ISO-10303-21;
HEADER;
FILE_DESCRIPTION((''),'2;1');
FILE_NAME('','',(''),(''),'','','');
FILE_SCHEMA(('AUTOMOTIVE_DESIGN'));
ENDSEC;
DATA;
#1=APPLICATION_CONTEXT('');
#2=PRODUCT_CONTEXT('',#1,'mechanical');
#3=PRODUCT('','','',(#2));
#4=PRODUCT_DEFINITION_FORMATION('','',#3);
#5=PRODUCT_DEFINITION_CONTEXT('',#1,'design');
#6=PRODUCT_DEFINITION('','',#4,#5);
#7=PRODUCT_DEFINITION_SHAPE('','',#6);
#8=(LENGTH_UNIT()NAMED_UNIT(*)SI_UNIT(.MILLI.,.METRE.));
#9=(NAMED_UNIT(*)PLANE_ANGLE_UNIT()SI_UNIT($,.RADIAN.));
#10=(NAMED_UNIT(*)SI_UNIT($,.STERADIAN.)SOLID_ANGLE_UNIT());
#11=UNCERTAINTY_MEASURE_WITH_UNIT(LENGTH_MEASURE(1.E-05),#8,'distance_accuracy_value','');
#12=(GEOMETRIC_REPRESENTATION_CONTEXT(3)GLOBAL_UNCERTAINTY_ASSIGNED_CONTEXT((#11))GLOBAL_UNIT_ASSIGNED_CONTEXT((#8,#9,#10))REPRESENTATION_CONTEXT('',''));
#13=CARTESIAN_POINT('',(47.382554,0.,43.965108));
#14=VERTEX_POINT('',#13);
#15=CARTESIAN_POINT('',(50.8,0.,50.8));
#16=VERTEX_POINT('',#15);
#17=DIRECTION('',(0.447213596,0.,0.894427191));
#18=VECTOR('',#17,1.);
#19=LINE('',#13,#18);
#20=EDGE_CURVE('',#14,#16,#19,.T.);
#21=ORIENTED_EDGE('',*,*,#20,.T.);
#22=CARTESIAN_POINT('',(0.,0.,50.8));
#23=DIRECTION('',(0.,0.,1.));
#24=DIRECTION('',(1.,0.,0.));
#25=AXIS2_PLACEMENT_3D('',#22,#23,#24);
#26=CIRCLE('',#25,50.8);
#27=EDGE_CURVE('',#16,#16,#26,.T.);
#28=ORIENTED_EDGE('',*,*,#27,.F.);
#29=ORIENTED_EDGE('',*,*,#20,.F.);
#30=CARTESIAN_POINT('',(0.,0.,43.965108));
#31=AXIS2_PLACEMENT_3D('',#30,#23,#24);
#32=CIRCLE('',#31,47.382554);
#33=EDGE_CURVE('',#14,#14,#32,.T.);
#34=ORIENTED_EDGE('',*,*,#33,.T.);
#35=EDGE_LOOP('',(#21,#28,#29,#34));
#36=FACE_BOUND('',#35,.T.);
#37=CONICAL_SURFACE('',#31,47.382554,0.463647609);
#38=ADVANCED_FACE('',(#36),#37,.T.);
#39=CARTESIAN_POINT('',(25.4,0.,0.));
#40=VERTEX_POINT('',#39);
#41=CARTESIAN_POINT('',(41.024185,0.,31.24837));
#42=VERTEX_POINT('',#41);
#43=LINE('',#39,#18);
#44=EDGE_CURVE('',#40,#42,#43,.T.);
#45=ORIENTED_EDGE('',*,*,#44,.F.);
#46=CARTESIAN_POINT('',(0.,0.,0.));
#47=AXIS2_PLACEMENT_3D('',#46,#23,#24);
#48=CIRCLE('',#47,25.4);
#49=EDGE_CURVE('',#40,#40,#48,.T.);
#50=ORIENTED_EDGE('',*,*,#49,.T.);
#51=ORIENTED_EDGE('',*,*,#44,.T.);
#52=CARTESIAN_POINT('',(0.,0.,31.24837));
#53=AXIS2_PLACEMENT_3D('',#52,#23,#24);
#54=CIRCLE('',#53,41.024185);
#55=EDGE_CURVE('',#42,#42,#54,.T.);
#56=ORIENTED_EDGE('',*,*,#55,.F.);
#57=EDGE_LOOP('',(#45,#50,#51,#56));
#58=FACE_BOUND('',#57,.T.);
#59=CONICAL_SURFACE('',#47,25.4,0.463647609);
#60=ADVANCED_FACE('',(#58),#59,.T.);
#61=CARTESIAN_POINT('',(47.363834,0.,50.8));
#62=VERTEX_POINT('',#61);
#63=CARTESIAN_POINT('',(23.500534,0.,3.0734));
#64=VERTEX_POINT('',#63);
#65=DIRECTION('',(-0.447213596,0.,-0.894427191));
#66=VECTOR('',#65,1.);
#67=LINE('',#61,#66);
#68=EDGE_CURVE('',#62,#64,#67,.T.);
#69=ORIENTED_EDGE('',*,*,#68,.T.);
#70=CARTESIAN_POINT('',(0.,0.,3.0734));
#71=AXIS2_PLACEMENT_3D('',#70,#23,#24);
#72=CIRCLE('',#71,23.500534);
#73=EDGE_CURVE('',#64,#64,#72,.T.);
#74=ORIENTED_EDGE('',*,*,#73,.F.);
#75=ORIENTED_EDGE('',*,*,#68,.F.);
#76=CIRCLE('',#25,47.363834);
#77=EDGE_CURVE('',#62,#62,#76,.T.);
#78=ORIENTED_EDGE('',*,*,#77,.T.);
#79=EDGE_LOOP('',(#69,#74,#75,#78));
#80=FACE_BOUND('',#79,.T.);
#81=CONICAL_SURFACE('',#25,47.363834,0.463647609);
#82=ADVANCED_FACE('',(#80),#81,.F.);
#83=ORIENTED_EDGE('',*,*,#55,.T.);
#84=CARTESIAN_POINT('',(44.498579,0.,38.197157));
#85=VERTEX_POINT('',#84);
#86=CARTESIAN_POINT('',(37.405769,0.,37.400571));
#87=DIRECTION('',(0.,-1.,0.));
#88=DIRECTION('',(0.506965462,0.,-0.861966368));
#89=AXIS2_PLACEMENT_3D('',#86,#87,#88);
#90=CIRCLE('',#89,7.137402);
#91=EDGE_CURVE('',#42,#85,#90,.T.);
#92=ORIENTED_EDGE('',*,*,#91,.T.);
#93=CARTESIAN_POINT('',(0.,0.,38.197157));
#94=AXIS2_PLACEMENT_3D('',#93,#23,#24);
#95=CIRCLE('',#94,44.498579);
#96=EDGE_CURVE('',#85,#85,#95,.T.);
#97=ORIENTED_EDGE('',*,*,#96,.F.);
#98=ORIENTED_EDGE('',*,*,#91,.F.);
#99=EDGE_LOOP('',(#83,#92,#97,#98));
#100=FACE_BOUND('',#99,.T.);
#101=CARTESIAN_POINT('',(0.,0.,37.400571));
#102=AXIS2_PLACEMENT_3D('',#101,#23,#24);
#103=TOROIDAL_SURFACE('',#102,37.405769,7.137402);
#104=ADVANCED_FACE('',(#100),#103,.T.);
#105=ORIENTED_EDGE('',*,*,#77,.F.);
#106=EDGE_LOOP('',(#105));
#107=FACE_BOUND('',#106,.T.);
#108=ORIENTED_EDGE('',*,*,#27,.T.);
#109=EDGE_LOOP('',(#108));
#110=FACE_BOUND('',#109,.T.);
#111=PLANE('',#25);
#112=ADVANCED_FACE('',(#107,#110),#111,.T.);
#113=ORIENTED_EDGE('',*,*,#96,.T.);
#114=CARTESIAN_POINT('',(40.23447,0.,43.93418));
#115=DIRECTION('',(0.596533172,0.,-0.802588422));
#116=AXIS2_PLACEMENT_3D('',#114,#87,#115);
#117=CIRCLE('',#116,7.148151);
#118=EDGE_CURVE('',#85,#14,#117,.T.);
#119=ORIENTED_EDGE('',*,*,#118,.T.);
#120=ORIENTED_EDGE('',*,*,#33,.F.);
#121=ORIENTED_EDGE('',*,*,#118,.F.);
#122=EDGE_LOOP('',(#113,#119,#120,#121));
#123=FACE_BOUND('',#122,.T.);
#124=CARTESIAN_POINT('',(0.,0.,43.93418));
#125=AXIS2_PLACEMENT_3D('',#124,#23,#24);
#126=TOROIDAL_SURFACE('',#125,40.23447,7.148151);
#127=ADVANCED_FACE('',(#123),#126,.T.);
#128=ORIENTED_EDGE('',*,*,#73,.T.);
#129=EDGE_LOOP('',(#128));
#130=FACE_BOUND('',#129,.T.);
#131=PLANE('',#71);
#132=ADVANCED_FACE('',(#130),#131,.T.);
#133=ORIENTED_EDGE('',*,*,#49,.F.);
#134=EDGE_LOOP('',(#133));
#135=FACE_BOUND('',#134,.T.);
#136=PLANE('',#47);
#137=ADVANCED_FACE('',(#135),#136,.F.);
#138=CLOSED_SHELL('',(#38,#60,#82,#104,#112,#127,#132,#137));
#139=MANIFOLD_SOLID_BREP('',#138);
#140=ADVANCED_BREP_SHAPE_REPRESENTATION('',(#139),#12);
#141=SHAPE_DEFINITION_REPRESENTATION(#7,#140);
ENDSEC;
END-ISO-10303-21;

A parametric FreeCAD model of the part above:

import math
import FreeCAD as App
import Part
import Sketcher
from FreeCAD import Vector
Q = App.Units.Quantity

doc = App.newDocument("Part")
body = doc.addObject("PartDesign::Body", "Body")

# Sketch on XZ plane
sketch1 = doc.addObject("Sketcher::SketchObject", "Sketch")
body.addObject(sketch1)
sketch1.AttachmentSupport = (doc.XZ_Plane, [""])
sketch1.MapMode = "FlatFace"
sketch1.addGeometry([
    Part.LineSegment(Vector(0, 3.0734, 0), Vector(0, 0, 0)),  # 0
    Part.LineSegment(Vector(0, 0, 0), Vector(25.4, 0, 0)),  # 1
    Part.LineSegment(Vector(25.4, 0, 0), Vector(41.024185, 31.24837, 0)),  # 2
    Part.ArcOfCircle(Part.Circle(Vector(37.405769, 37.400571, 0), Vector(0, 0, 1), 7.137402), math.radians(-59.538089), math.radians(6.40798)),  # 3
    Part.ArcOfCircle(Part.Circle(Vector(40.23447, 43.93418, 0), Vector(0, 0, 1), 7.148151), math.radians(-53.377994), math.radians(0.2479)),  # 4
    Part.LineSegment(Vector(47.382554, 43.965108, 0), Vector(50.8, 50.8, 0)),  # 5
    Part.LineSegment(Vector(50.8, 50.8, 0), Vector(47.363834, 50.8, 0)),  # 6
    Part.LineSegment(Vector(47.363834, 50.8, 0), Vector(23.500534, 3.0734, 0)),  # 7
    Part.LineSegment(Vector(23.500534, 3.0734, 0), Vector(0, 3.0734, 0)),  # 8
], False)
sketch1.addConstraint([
    Sketcher.Constraint("Coincident", 0, 2, 1, 1),
    Sketcher.Constraint("Coincident", 1, 2, 2, 1),
    Sketcher.Constraint("Coincident", 2, 2, 3, 1),
    Sketcher.Constraint("Coincident", 3, 2, 4, 1),
    Sketcher.Constraint("Coincident", 4, 2, 5, 1),
    Sketcher.Constraint("Coincident", 5, 2, 6, 1),
    Sketcher.Constraint("Coincident", 6, 2, 7, 1),
    Sketcher.Constraint("Coincident", 7, 2, 8, 1),
    Sketcher.Constraint("Coincident", 8, 2, 0, 1),
    Sketcher.Constraint("Vertical", 0),
    Sketcher.Constraint("Horizontal", 1),
    Sketcher.Constraint("Horizontal", 6),
    Sketcher.Constraint("Horizontal", 8),
    Sketcher.Constraint("Coincident", 0, 2, -1, 1),
    Sketcher.Constraint("Parallel", 2, 5),
    Sketcher.Constraint("Parallel", 5, 7),
    Sketcher.Constraint("DistanceX", 1, 1, 1, 2, Q("1 in")),
    Sketcher.Constraint("DistanceX", -1, 1, 5, 2, Q("2 in")),
    Sketcher.Constraint("DistanceY", -1, 1, 5, 2, Q("2 in")),
    Sketcher.Constraint("Radius", 3, Q("0.2810001 in")),
    Sketcher.Constraint("DistanceY", 0, 2, 0, 1, Q("0.121 in")),
    Sketcher.Constraint("Radius", 4, 7.148151),
    Sketcher.Constraint("DistanceX", 3, 3, 4, 3, 2.828701),
    Sketcher.Constraint("DistanceY", 2, 2, 3, 3, 6.152201),
    Sketcher.Constraint("Distance", 2, 34.93674),
    Sketcher.Constraint("Distance", 5, 7.641642),
    Sketcher.Constraint("Distance", 7, 53.359961),
    Sketcher.Constraint("DistanceX", 6, 2, 6, 1, 3.436166),
])
revolution = doc.addObject("PartDesign::Revolution", "Revolution")
body.addObject(revolution)
revolution.Profile = sketch1
revolution.ReferenceAxis = (sketch1, ["V_Axis"])
revolution.Angle = 360

doc.recompute()
